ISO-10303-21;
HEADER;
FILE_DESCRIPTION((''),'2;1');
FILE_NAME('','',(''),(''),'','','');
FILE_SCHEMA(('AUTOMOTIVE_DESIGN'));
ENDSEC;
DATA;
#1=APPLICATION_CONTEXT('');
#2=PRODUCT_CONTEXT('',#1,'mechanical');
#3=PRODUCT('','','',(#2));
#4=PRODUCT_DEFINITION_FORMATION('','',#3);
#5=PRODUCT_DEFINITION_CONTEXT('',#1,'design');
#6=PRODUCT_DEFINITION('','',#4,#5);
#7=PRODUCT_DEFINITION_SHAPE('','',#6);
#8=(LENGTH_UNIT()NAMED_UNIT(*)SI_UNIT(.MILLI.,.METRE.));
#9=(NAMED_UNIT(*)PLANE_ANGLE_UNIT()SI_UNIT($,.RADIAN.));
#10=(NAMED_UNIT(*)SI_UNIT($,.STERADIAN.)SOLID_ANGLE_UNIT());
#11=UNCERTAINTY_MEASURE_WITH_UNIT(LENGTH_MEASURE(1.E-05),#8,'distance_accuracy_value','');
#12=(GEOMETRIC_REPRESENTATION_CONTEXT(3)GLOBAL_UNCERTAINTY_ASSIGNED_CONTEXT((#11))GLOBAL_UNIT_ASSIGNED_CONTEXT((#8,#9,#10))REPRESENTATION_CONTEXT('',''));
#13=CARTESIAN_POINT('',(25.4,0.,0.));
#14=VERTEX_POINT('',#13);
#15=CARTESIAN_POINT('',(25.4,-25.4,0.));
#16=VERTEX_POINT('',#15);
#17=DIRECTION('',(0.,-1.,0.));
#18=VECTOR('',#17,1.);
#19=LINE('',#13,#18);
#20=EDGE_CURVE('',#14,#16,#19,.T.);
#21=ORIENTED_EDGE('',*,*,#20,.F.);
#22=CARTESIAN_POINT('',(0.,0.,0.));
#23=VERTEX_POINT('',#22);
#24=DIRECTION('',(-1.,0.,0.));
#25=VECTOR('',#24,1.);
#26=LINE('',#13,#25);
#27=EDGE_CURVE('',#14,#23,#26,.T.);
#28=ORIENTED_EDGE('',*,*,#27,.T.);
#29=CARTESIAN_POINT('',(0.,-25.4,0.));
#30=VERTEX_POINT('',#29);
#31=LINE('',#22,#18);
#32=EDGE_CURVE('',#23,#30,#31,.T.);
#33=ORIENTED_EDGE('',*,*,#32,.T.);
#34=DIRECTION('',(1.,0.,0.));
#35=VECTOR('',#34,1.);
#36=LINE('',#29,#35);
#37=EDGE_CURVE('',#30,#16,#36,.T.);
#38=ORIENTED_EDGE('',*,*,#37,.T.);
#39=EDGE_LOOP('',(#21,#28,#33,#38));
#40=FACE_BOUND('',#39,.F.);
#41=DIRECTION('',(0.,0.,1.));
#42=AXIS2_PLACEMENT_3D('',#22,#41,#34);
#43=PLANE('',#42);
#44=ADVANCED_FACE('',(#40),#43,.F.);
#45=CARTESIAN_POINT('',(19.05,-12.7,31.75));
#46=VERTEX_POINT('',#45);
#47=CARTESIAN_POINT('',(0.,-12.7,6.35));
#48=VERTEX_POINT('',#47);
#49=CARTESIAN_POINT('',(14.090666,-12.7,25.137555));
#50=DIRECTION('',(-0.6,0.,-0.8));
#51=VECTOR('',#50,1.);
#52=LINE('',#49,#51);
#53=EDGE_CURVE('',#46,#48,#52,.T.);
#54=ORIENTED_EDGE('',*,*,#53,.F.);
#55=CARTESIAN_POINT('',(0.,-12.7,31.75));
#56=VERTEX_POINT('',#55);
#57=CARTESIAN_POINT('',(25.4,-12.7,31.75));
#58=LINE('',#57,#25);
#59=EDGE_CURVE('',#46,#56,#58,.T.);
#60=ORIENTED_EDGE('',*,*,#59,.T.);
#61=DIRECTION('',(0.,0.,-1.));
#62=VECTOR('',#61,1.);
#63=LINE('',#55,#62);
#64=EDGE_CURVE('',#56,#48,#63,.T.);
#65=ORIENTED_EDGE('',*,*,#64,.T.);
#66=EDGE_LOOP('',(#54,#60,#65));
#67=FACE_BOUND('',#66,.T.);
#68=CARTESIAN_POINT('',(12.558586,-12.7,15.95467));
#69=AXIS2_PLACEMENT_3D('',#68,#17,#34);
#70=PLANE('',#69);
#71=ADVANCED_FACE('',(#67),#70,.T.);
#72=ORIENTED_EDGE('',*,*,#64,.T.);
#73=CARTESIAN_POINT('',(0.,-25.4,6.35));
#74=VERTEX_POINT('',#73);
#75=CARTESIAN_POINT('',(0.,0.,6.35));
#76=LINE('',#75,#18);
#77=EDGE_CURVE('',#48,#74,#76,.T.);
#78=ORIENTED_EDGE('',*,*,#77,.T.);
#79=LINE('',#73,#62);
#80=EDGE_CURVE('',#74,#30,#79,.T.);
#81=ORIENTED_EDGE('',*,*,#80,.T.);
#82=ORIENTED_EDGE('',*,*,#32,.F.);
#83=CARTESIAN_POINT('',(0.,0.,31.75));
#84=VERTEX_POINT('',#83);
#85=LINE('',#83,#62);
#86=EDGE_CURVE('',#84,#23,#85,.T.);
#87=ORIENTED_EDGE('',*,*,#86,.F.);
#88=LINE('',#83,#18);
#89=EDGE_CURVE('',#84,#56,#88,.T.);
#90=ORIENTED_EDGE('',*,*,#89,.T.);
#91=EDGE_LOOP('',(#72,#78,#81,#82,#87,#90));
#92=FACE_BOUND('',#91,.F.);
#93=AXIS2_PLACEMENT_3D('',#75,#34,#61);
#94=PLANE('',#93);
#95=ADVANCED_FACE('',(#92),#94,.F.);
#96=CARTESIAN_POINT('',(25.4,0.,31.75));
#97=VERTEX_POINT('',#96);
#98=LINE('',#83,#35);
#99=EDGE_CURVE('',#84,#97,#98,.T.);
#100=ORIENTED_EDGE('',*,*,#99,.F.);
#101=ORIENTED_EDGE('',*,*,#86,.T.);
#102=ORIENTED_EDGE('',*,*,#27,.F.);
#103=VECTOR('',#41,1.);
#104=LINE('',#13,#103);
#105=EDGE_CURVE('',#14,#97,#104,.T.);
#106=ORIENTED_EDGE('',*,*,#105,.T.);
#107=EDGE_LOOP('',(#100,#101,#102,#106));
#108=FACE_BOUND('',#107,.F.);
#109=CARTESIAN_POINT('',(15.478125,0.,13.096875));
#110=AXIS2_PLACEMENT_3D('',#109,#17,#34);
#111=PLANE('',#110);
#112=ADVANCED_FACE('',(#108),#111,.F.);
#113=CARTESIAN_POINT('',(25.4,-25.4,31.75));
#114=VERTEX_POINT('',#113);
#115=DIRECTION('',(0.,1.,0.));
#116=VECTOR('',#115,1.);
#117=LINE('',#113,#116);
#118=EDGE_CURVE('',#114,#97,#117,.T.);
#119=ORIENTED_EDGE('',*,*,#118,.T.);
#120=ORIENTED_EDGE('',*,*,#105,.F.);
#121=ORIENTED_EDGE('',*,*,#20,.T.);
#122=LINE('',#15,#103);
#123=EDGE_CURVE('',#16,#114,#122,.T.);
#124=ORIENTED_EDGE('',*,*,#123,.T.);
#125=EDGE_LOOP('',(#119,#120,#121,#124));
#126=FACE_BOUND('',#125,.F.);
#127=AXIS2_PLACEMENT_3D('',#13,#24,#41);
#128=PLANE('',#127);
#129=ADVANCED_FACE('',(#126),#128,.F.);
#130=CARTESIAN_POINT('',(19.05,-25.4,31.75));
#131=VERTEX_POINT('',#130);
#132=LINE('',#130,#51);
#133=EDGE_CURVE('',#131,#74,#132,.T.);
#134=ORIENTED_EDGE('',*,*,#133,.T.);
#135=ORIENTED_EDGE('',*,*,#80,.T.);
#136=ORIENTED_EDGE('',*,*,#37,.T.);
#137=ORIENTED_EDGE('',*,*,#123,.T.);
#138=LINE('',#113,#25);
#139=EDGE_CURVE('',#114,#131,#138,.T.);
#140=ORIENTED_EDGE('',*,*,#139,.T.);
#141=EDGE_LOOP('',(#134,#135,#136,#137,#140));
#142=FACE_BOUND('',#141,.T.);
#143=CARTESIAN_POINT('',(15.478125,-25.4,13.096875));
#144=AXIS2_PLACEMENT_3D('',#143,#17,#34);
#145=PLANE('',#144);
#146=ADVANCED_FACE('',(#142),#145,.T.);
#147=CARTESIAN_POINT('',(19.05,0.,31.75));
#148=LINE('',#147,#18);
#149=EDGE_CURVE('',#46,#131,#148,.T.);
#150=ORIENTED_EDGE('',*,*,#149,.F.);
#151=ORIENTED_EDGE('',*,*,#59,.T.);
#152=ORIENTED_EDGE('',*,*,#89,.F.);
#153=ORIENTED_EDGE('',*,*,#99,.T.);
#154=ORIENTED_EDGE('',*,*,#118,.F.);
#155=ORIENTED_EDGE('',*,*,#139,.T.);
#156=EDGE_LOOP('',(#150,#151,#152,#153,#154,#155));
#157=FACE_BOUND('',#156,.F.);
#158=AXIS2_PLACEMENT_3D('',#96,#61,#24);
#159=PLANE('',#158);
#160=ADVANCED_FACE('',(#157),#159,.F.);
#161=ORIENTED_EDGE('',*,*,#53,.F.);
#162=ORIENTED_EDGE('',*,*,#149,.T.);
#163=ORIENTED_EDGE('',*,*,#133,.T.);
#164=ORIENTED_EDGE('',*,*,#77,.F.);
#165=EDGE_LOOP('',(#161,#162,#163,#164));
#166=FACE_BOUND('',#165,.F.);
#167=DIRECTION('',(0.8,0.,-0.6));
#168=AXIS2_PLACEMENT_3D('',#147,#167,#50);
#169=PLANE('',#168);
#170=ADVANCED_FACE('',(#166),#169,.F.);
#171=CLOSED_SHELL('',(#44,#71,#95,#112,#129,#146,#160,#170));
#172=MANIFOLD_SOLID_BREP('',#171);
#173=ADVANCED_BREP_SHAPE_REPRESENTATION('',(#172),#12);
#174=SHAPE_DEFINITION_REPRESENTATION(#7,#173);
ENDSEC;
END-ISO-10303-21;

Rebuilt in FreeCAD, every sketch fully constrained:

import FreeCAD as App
import Part
import Sketcher
from FreeCAD import Vector
Q = App.Units.Quantity


def add_polygon(sketch, points):
    """Adds a closed chain of lines whose ends are joined by coincident constraints."""
    first, n = sketch.GeometryCount, len(points)
    for a, b in zip(points, points[1:] + points[:1]):
        sketch.addGeometry(Part.LineSegment(App.Vector(*a, 0), App.Vector(*b, 0)), False)
    for i in range(n):
        sketch.addConstraint(Sketcher.Constraint("Coincident", first + i, 2, first + (i + 1) % n, 1))

doc = App.newDocument("Part")
body = doc.addObject("PartDesign::Body", "Body")

sketch1 = body.newObject("Sketcher::SketchObject", "Sketch")
sketch1.AttachmentSupport = (doc.getObject("XZ_Plane"), [""])
sketch1.MapMode = "FlatFace"
add_polygon(sketch1, [(0, 6), (0, 0), (25, 0), (25, 32), (19, 32)])
sketch1.addConstraint(Sketcher.Constraint("Vertical", 0))
sketch1.addConstraint(Sketcher.Constraint("Horizontal", 1))
sketch1.addConstraint(Sketcher.Constraint("Vertical", 2))
sketch1.addConstraint(Sketcher.Constraint("Horizontal", 3))
sketch1.addConstraint(Sketcher.Constraint("Coincident", 0, 2, -1, 1))
sketch1.addConstraint(Sketcher.Constraint("Equal", 3, 0))
sketch1.addConstraint(Sketcher.Constraint("DistanceX", 1, 1, 1, 2, Q("1 in")))
sketch1.addConstraint(Sketcher.Constraint("DistanceY", 4, 2, 3, 2, Q("1 in")))
sketch1.addConstraint(Sketcher.Constraint("DistanceX", 3, 2, 3, 1, Q("0.25 in")))
pad1 = body.newObject("PartDesign::Pad", "Pad")
pad1.Profile = sketch1
pad1.Length = Q("1 in")

sketch2 = body.newObject("Sketcher::SketchObject", "Sketch001")
sketch2.AttachmentSupport = (doc.getObject("XZ_Plane"), [""])
sketch2.MapMode = "FlatFace"
add_polygon(sketch2, [(25, 0), (25, 32), (0, 32), (0, 0)])
sketch2.addConstraint(Sketcher.Constraint("Horizontal", 1))
sketch2.addConstraint(Sketcher.Constraint("Vertical", 2))
sketch2.addConstraint(Sketcher.Constraint("Horizontal", 3))
sketch2.addConstraint(Sketcher.Constraint("Coincident", 2, 2, -1, 1))
sketch2.addConstraint(Sketcher.Constraint("DistanceX", 1, 2, 1, 1, Q("1 in")))
sketch2.addConstraint(Sketcher.Constraint("DistanceY", 2, 2, 2, 1, Q("1.25 in")))
sketch2.addConstraint(Sketcher.Constraint("Distance", 0, Q("31.75513 mm")))
pad2 = body.newObject("PartDesign::Pad", "Pad001")
pad2.Profile = sketch2
pad2.Length = Q("0.5 in")

doc.recompute()
